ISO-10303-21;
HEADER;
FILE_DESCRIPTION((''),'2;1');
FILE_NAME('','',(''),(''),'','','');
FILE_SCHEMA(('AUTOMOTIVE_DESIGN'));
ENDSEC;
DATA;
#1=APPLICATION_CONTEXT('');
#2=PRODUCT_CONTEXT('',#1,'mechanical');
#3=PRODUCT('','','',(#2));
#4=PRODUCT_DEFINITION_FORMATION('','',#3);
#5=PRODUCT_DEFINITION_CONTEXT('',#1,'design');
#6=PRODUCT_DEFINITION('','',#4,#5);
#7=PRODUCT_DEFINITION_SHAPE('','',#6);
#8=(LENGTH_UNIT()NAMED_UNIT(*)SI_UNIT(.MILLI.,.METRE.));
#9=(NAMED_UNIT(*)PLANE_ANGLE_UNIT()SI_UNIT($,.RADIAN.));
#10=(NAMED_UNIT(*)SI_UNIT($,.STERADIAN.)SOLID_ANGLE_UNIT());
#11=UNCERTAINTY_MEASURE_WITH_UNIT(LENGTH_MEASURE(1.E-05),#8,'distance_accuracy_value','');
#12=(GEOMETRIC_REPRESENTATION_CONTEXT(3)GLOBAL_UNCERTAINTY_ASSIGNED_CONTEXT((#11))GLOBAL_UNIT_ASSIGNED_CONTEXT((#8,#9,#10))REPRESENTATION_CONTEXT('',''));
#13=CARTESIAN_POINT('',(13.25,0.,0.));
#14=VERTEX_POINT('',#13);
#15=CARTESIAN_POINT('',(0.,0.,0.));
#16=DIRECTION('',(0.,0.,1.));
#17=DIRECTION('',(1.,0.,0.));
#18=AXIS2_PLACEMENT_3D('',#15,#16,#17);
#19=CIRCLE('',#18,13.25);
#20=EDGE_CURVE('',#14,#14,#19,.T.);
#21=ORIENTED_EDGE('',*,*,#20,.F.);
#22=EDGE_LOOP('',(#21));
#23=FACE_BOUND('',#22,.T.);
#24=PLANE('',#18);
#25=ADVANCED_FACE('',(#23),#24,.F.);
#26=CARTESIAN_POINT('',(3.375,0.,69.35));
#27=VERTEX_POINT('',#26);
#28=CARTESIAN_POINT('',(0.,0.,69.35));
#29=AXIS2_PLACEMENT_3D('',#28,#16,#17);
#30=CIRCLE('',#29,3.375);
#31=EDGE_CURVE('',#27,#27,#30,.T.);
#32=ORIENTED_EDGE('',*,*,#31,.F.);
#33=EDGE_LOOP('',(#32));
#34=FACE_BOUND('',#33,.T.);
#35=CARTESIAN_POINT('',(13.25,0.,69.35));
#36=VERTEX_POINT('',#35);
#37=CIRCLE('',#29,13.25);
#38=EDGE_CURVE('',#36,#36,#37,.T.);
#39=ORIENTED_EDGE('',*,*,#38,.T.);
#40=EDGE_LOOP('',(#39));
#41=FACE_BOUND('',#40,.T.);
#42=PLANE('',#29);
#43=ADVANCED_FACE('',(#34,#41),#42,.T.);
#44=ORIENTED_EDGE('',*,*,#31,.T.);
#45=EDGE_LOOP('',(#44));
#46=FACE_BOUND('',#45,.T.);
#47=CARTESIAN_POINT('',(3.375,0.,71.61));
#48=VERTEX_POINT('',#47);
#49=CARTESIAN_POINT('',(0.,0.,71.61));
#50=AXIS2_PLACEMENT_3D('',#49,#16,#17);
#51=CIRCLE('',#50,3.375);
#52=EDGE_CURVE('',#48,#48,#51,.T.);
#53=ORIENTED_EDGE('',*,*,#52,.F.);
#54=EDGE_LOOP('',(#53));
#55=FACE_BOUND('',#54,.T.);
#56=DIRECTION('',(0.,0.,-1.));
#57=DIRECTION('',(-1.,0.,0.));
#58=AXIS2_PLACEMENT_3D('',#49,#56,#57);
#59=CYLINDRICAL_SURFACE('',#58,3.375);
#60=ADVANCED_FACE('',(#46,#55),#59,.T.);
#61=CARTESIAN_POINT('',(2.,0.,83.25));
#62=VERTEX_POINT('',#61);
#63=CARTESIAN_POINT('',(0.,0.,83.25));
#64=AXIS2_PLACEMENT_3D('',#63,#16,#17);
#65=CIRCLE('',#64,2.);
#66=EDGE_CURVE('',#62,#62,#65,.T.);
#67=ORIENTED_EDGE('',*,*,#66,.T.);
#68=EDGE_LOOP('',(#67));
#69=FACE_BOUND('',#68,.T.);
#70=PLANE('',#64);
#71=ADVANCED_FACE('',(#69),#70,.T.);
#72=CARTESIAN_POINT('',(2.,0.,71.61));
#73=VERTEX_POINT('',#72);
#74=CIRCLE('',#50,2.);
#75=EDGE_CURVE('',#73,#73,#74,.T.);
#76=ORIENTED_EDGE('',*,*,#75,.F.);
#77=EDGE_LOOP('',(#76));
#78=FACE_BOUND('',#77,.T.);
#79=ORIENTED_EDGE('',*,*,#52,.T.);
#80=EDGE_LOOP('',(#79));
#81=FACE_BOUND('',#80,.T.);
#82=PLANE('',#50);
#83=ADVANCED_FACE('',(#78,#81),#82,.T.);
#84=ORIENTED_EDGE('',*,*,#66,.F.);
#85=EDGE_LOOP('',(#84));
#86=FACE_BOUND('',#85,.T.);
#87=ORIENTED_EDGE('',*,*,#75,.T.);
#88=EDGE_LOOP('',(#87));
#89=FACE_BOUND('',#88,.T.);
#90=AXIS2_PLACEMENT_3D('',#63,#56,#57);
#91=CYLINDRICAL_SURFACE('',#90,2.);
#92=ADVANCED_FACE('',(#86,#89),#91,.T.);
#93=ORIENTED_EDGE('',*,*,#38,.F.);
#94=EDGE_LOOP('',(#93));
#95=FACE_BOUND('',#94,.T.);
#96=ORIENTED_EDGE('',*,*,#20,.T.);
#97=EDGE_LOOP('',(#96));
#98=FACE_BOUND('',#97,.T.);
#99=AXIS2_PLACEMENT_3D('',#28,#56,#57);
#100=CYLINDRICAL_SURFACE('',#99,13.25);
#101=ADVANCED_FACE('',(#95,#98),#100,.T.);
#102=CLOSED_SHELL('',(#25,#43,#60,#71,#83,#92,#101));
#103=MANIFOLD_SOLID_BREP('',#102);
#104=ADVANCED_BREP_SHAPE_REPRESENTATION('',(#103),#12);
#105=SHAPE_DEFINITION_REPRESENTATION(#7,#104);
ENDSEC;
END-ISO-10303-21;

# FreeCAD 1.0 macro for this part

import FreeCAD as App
import Part
import Sketcher
from FreeCAD import Vector

doc = App.newDocument("Part")
params = doc.addObject("Spreadsheet::Sheet", "Params")
for row, (alias, value) in enumerate([
    ("sketch1_diameter", "26.5 mm"),
    ("pad1_length", "69.35 mm"),
    ("sketch2_diameter", "6.75 mm"),
    ("pad2_length", "2.26 mm"),
    ("sketch3_diameter", "4 mm"),
    ("pad3_length", "11.64 mm"),
], start=1):
    params.set(f"A{row}", alias)
    params.set(f"B{row}", "=" + value)
    params.setAlias(f"B{row}", alias)

body = doc.addObject("PartDesign::Body", "Body")

# Sketch on XY plane
sketch1 = body.newObject("Sketcher::SketchObject", "Sketch")
sketch1.AttachmentSupport = (doc.getObject("XY_Plane"), [""])
sketch1.MapMode = "FlatFace"
sketch1.addGeometry(Part.Circle(Vector(0, 0, 0), Vector(0, 0, 1), 13), False)
sketch1.addConstraint([
    Sketcher.Constraint("Coincident", 0, 3, -1, 1),
    Sketcher.Constraint("Diameter", 0, 26.5),
])
sketch1.setExpression("Constraints[1]", "Params.sketch1_diameter")
pad1 = body.newObject("PartDesign::Pad", "Pad")
pad1.Profile = sketch1
pad1.setExpression("Length", "Params.pad1_length")

# Sketch on XY plane
sketch2 = body.newObject("Sketcher::SketchObject", "Sketch001")
sketch2.AttachmentSupport = (doc.getObject("XY_Plane"), [""])
sketch2.MapMode = "FlatFace"
sketch2.AttachmentOffset = App.Placement(Vector(0, 0, 69.35), App.Rotation())
sketch2.addGeometry(Part.Circle(Vector(0, 0, 0), Vector(0, 0, 1), 3.4), False)
sketch2.addConstraint([
    Sketcher.Constraint("Coincident", 0, 3, -1, 1),
    Sketcher.Constraint("Diameter", 0, 6.75),
])
sketch2.setExpression("Constraints[1]", "Params.sketch2_diameter")
pad2 = body.newObject("PartDesign::Pad", "Pad001")
pad2.Profile = sketch2
pad2.setExpression("Length", "Params.pad2_length")

# Sketch on XY plane
sketch3 = body.newObject("Sketcher::SketchObject", "Sketch002")
sketch3.AttachmentSupport = (doc.getObject("XY_Plane"), [""])
sketch3.MapMode = "FlatFace"
sketch3.AttachmentOffset = App.Placement(Vector(0, 0, 71.61), App.Rotation())
sketch3.addGeometry(Part.Circle(Vector(0, 0, 0), Vector(0, 0, 1), 2), False)
sketch3.addConstraint([
    Sketcher.Constraint("Coincident", 0, 3, -1, 1),
    Sketcher.Constraint("Diameter", 0, 4.0),
])
sketch3.setExpression("Constraints[1]", "Params.sketch3_diameter")
pad3 = body.newObject("PartDesign::Pad", "Pad002")
pad3.Profile = sketch3
pad3.setExpression("Length", "Params.pad3_length")

doc.recompute()
